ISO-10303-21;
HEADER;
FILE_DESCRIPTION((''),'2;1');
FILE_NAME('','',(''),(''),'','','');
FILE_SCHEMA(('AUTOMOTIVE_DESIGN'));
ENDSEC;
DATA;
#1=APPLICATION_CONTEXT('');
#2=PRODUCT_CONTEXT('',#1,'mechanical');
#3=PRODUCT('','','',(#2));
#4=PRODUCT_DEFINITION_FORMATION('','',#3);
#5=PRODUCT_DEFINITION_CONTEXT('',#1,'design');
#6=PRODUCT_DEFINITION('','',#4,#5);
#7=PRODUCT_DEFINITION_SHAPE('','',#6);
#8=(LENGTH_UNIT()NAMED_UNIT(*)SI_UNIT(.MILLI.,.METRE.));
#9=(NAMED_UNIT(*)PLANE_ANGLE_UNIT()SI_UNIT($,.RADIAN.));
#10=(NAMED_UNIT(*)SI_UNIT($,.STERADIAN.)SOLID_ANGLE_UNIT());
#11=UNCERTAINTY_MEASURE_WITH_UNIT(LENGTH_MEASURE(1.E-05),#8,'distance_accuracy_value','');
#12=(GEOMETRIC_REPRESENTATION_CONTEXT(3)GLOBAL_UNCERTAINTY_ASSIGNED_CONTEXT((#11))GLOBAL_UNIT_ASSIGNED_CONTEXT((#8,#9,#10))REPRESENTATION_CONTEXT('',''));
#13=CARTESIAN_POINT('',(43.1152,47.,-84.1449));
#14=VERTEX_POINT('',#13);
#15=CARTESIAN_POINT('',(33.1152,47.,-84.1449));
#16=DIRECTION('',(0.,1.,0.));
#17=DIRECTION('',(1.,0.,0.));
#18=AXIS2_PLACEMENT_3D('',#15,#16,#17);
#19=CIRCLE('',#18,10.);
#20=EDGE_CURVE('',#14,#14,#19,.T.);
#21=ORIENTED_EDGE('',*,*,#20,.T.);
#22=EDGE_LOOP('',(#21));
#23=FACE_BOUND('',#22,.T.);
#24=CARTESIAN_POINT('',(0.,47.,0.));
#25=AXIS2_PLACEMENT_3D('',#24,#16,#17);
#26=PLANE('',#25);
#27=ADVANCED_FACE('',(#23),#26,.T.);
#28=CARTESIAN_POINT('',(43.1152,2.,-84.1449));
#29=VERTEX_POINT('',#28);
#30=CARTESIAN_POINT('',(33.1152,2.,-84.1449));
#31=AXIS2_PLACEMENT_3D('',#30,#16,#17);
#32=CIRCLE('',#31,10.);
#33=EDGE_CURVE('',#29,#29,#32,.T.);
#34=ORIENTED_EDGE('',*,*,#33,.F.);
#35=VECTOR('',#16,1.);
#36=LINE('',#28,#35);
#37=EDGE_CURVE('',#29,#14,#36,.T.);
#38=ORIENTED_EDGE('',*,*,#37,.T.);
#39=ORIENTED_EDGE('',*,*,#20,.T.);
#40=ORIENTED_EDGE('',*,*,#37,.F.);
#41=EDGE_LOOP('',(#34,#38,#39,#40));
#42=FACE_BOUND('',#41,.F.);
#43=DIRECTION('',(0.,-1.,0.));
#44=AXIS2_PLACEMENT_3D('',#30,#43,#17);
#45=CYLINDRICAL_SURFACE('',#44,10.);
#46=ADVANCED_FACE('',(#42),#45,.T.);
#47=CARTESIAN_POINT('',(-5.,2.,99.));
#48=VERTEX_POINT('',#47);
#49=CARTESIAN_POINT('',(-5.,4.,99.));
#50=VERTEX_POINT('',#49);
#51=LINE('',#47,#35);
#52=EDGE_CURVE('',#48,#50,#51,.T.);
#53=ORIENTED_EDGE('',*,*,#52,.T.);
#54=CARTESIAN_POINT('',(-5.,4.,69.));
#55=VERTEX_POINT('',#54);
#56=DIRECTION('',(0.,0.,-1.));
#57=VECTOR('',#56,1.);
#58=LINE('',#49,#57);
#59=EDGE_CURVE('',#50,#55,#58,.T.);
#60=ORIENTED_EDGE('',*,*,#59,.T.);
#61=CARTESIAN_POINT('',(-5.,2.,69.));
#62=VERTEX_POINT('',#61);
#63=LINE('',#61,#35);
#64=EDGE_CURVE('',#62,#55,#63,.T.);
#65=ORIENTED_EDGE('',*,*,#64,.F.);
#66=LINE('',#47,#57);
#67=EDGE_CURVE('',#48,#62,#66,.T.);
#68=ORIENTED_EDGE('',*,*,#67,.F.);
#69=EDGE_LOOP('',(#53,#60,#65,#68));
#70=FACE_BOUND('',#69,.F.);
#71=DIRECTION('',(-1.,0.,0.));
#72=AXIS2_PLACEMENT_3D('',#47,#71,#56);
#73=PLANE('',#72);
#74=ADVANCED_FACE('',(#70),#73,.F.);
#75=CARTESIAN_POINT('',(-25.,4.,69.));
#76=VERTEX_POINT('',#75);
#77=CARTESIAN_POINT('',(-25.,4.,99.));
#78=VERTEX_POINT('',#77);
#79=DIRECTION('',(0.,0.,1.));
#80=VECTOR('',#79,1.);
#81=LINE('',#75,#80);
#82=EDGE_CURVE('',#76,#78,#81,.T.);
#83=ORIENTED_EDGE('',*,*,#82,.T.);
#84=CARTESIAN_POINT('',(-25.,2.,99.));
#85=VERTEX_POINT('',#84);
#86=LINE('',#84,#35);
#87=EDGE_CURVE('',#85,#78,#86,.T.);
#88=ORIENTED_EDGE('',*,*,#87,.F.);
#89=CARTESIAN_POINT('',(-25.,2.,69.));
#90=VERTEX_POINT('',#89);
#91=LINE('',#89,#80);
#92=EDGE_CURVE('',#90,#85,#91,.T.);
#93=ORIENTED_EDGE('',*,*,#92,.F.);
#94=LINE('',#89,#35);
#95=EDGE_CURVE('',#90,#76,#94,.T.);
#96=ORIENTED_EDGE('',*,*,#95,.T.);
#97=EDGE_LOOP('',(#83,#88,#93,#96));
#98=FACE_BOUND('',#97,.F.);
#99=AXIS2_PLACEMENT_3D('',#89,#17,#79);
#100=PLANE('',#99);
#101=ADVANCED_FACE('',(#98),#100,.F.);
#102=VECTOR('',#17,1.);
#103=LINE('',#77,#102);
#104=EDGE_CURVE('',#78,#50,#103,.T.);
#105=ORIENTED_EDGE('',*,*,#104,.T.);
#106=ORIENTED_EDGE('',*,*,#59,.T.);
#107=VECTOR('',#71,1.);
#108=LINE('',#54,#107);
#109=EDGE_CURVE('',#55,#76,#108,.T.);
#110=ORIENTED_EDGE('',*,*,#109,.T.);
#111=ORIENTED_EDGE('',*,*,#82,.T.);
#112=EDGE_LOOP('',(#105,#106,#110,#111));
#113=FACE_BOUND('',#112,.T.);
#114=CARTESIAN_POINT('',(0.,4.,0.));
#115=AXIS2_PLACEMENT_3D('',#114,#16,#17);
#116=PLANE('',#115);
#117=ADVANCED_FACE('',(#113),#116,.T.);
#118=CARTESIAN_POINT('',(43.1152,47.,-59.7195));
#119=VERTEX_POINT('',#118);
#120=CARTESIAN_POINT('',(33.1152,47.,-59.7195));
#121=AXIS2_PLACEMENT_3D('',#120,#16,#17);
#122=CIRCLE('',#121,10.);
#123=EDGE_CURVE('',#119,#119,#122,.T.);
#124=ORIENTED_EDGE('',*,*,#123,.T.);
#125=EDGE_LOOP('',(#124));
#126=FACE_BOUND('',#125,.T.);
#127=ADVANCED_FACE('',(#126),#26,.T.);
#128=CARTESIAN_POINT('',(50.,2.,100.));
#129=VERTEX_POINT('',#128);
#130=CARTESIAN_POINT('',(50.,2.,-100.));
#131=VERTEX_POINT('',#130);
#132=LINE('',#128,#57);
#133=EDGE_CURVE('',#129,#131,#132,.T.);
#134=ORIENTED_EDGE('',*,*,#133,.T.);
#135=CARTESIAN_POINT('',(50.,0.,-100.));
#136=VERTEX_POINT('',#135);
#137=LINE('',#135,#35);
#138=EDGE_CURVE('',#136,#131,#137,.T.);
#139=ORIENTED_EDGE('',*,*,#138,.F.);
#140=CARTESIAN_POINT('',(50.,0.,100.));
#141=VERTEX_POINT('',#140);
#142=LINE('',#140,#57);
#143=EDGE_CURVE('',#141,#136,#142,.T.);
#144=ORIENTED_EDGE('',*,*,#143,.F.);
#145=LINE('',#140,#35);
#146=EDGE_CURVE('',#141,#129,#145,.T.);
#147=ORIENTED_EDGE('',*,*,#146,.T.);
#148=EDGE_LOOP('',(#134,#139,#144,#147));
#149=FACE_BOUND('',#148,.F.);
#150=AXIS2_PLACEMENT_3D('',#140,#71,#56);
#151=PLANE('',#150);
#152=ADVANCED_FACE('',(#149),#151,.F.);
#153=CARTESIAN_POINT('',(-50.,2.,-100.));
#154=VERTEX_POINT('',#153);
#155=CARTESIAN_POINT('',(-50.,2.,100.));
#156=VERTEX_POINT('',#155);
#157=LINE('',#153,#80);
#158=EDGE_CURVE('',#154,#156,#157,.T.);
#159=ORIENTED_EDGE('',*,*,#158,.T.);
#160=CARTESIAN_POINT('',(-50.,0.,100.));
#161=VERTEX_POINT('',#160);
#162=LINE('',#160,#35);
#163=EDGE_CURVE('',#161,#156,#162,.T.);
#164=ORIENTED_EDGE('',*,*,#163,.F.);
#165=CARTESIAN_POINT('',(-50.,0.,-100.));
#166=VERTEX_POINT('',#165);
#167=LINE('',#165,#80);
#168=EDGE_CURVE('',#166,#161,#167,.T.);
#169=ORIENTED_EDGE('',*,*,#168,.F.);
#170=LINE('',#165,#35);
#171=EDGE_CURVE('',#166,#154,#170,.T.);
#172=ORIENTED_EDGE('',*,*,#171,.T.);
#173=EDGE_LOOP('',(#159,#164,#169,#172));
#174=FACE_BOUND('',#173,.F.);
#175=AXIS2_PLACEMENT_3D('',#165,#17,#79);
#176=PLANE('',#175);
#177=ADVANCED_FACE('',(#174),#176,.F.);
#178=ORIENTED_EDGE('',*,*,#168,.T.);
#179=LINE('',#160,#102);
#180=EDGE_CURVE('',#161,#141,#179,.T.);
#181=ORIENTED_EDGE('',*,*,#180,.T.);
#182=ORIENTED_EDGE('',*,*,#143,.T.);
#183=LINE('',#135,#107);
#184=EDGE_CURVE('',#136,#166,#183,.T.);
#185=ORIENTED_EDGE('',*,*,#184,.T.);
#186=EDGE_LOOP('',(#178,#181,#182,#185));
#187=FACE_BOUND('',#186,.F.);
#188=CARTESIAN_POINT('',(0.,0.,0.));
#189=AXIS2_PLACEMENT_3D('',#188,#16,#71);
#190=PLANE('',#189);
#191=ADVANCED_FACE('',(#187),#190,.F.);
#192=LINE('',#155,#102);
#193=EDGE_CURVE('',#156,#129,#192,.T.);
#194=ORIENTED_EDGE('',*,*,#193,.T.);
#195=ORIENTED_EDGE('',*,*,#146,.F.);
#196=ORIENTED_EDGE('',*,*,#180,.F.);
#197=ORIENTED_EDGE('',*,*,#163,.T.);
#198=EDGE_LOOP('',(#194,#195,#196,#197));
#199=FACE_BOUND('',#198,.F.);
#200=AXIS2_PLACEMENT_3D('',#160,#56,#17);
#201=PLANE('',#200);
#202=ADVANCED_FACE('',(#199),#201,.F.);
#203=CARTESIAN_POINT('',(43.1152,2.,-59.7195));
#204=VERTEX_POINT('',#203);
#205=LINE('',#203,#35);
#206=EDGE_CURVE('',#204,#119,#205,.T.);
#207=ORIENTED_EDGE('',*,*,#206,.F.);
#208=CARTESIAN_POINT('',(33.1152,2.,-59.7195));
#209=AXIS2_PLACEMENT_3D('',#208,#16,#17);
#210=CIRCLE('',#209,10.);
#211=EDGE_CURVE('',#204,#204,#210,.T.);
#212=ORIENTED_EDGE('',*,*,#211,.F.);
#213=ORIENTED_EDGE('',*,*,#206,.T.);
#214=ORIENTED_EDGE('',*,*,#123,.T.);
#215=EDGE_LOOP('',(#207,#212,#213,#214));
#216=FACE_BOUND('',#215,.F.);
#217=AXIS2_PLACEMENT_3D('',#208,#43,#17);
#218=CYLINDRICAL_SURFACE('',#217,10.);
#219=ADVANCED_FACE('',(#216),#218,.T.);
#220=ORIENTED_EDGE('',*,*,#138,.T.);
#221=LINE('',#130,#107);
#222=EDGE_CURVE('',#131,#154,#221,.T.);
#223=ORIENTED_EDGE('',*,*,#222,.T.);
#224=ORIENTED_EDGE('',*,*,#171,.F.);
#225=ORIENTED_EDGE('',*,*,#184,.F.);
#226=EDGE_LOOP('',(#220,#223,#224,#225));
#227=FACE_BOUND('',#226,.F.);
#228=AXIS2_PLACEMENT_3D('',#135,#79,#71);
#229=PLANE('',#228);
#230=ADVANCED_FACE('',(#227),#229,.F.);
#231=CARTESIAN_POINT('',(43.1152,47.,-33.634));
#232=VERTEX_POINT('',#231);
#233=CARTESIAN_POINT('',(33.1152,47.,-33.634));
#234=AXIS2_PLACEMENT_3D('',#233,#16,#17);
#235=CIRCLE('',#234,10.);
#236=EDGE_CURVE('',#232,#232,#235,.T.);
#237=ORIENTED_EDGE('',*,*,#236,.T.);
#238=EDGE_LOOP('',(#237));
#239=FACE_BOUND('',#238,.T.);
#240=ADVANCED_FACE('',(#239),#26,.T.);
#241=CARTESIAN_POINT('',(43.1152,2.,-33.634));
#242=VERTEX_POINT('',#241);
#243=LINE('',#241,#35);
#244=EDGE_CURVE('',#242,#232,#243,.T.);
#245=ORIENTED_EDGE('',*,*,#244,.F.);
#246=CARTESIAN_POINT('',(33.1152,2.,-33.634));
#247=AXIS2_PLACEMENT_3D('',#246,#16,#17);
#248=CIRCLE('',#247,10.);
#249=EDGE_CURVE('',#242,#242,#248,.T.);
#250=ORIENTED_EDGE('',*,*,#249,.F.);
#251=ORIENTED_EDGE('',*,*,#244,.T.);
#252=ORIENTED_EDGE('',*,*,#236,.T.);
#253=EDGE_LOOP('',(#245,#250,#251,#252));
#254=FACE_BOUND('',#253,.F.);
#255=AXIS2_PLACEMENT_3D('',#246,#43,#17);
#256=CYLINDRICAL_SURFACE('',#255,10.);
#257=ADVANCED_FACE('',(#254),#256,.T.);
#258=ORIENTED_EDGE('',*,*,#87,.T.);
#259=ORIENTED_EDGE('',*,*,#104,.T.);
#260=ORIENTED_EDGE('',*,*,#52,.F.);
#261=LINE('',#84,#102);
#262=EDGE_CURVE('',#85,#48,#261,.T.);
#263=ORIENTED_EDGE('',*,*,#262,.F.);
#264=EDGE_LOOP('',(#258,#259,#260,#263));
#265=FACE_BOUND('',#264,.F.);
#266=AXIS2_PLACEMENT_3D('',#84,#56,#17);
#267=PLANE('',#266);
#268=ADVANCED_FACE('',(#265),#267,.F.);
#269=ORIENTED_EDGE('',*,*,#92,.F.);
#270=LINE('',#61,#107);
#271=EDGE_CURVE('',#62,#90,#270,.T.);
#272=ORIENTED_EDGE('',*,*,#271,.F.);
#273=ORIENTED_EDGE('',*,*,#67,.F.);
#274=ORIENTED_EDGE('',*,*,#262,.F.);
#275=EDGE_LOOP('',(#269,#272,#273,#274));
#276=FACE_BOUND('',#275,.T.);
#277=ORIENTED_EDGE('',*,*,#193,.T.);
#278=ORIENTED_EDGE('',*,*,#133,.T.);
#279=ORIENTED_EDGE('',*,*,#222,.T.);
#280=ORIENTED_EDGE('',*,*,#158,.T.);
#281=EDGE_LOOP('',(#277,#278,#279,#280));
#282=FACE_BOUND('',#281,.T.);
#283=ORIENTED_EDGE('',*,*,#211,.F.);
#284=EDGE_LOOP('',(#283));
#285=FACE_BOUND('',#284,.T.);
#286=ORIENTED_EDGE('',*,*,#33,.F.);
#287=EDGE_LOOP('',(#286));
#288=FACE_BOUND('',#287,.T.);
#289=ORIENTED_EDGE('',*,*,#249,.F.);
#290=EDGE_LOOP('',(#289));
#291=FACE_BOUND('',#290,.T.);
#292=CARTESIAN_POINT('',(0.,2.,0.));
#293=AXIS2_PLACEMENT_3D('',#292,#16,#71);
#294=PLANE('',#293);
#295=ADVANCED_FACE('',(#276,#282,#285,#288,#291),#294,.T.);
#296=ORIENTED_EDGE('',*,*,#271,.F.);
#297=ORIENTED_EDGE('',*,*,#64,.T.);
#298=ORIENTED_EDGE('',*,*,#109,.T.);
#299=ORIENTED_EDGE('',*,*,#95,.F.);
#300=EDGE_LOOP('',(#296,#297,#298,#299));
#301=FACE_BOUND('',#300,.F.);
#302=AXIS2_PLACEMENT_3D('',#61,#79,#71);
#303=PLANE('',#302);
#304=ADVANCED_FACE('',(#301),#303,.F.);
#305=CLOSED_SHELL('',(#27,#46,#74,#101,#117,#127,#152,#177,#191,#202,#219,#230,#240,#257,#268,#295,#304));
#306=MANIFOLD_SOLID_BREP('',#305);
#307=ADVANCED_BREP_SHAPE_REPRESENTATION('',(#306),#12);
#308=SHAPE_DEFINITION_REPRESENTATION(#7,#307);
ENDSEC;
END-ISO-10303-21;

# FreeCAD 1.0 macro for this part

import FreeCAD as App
import Part
import Sketcher


def add_polygon(sketch, points):
    """Adds a closed chain of lines whose ends are joined by coincident constraints."""
    first, n = sketch.GeometryCount, len(points)
    for a, b in zip(points, points[1:] + points[:1]):
        sketch.addGeometry(Part.LineSegment(App.Vector(*a, 0), App.Vector(*b, 0)), False)
    for i in range(n):
        sketch.addConstraint(Sketcher.Constraint("Coincident", first + i, 2, first + (i + 1) % n, 1))

doc = App.newDocument("Part")
body = doc.addObject("PartDesign::Body", "Body")

# Sketch on XZ plane
sketch1 = doc.addObject("Sketcher::SketchObject", "Sketch")
body.addObject(sketch1)
sketch1.AttachmentSupport = (doc.XZ_Plane, [""])
sketch1.MapMode = "FlatFace"
add_polygon(sketch1, [(50, 100), (50, -100), (-50, -100), (-50, 100)])  # lines 0-3
sketch1.addConstraint(Sketcher.Constraint("Vertical", 0))
sketch1.addConstraint(Sketcher.Constraint("Horizontal", 1))
sketch1.addConstraint(Sketcher.Constraint("Vertical", 2))
sketch1.addConstraint(Sketcher.Constraint("Horizontal", 3))
sketch1.addConstraint(Sketcher.Constraint("Symmetric", 0, 2, 2, 2, -1, 1))
sketch1.addConstraint(Sketcher.Constraint("DistanceX", 1, 2, 1, 1, 100.0))
sketch1.addConstraint(Sketcher.Constraint("DistanceY", 0, 2, 0, 1, 200.0))
pad1 = doc.addObject("PartDesign::Pad", "Pad")
body.addObject(pad1)
pad1.Profile = sketch1
pad1.Length = 2
pad1.Reversed = True

# Sketch on XZ plane
sketch2 = doc.addObject("Sketcher::SketchObject", "Sketch001")
body.addObject(sketch2)
sketch2.AttachmentSupport = (doc.XZ_Plane, [""])
sketch2.MapMode = "FlatFace"
sketch2.AttachmentOffset = App.Placement(App.Vector(0, 0, -2), App.Rotation())
sketch2.addGeometry(Part.Circle(App.Vector(33, -84, 0), App.Vector(0, 0, 1), 10), False)
sketch2.addGeometry(Part.Circle(App.Vector(33, -60, 0), App.Vector(0, 0, 1), 10), False)
sketch2.addGeometry(Part.Circle(App.Vector(33, -34, 0), App.Vector(0, 0, 1), 10), False)
sketch2.addConstraint(Sketcher.Constraint("Equal", 0, 1))
sketch2.addConstraint(Sketcher.Constraint("Equal", 1, 2))
sketch2.addConstraint(Sketcher.Constraint("Vertical", 0, 3, 1, 3))
sketch2.addConstraint(Sketcher.Constraint("Vertical", 1, 3, 2, 3))
sketch2.addConstraint(Sketcher.Constraint("Diameter", 0, 20.0))
sketch2.addConstraint(Sketcher.Constraint("DistanceY", 0, 3, -1, 1, 84.145))
sketch2.addConstraint(Sketcher.Constraint("DistanceY", 2, 3, -1, 1, 33.634))
sketch2.addConstraint(Sketcher.Constraint("DistanceX", -1, 1, 0, 3, 33.1152))
sketch2.addConstraint(Sketcher.Constraint("DistanceY", 1, 3, -1, 1, 59.7195))
pad2 = doc.addObject("PartDesign::Pad", "Pad001")
body.addObject(pad2)
pad2.Profile = sketch2
pad2.Length = 45
pad2.Reversed = True

# Sketch on XZ plane
sketch3 = doc.addObject("Sketcher::SketchObject", "Sketch002")
body.addObject(sketch3)
sketch3.AttachmentSupport = (doc.XZ_Plane, [""])
sketch3.MapMode = "FlatFace"
sketch3.AttachmentOffset = App.Placement(App.Vector(0, 0, -2), App.Rotation())
add_polygon(sketch3, [(-25, 69), (-25, 99), (-5, 99), (-5, 69)])  # lines 0-3
sketch3.addConstraint(Sketcher.Constraint("Vertical", 0))
sketch3.addConstraint(Sketcher.Constraint("Horizontal", 1))
sketch3.addConstraint(Sketcher.Constraint("Vertical", 2))
sketch3.addConstraint(Sketcher.Constraint("Horizontal", 3))
sketch3.addConstraint(Sketcher.Constraint("DistanceY", 0, 1, 0, 2, 30.0))
sketch3.addConstraint(Sketcher.Constraint("DistanceX", 0, 2, -1, 1, 25.0))
sketch3.addConstraint(Sketcher.Constraint("DistanceX", 1, 1, 1, 2, 20.0))
sketch3.addConstraint(Sketcher.Constraint("DistanceY", -1, 1, 0, 2, 99.0))
pad3 = doc.addObject("PartDesign::Pad", "Pad002")
body.addObject(pad3)
pad3.Profile = sketch3
pad3.Length = 2
pad3.Reversed = True

doc.recompute()
